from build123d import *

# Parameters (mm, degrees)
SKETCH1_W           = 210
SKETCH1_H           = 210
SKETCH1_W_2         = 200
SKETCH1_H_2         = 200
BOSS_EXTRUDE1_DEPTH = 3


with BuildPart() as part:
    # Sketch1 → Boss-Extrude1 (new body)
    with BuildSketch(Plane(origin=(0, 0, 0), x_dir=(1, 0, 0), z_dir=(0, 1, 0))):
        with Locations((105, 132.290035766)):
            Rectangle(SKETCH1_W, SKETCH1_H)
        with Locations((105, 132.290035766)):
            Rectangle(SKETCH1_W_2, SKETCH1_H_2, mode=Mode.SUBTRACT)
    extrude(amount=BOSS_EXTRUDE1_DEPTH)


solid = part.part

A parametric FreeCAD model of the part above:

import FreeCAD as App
import Part
import Sketcher
from FreeCAD import Vector

doc = App.newDocument("Part")
body = doc.addObject("PartDesign::Body", "Body")

# Sketch on XZ plane
sketch1 = body.newObject("Sketcher::SketchObject", "Sketch")
sketch1.AttachmentSupport = (doc.getObject("XZ_Plane"), [""])
sketch1.MapMode = "FlatFace"
sketch1.addGeometry([
    Part.LineSegment(Vector(0, -237, 0), Vector(0, -27, 0)),  # 0
    Part.LineSegment(Vector(0, -27, 0), Vector(210, -27, 0)),  # 1
    Part.LineSegment(Vector(210, -27, 0), Vector(210, -237, 0)),  # 2
    Part.LineSegment(Vector(210, -237, 0), Vector(0, -237, 0)),  # 3
    Part.LineSegment(Vector(205, -32, 0), Vector(5, -32, 0)),  # 4
    Part.LineSegment(Vector(5, -32, 0), Vector(5, -232, 0)),  # 5
    Part.LineSegment(Vector(5, -232, 0), Vector(205, -232, 0)),  # 6
    Part.LineSegment(Vector(205, -232, 0), Vector(205, -32, 0)),  # 7
], False)
sketch1.addConstraint([
    Sketcher.Constraint("Coincident", 0, 2, 1, 1),
    Sketcher.Constraint("Coincident", 1, 2, 2, 1),
    Sketcher.Constraint("Coincident", 2, 2, 3, 1),
    Sketcher.Constraint("Coincident", 3, 2, 0, 1),
    Sketcher.Constraint("Coincident", 4, 2, 5, 1),
    Sketcher.Constraint("Coincident", 5, 2, 6, 1),
    Sketcher.Constraint("Coincident", 6, 2, 7, 1),
    Sketcher.Constraint("Coincident", 7, 2, 4, 1),
    Sketcher.Constraint("Vertical", 0),
    Sketcher.Constraint("Horizontal", 1),
    Sketcher.Constraint("Vertical", 2),
    Sketcher.Constraint("Horizontal", 3),
    Sketcher.Constraint("Horizontal", 4),
    Sketcher.Constraint("Vertical", 5),
    Sketcher.Constraint("Horizontal", 6),
    Sketcher.Constraint("Vertical", 7),
    Sketcher.Constraint("PointOnObject", 0, 2, -2),
    Sketcher.Constraint("Equal", 3, 0),
    Sketcher.Constraint("Equal", 6, 5),
    Sketcher.Constraint("DistanceX", 1, 1, 1, 2, 210.0),
    Sketcher.Constraint("DistanceX", 4, 2, 4, 1, 200.0),
    Sketcher.Constraint("DistanceX", -1, 1, 4, 2, 5.0),
    Sketcher.Constraint("DistanceY", 4, 2, 0, 2, 5.0),
    Sketcher.Constraint("DistanceY", 0, 2, -1, 1, 27.290036),
])
pad1 = body.newObject("PartDesign::Pad", "Pad")
pad1.Profile = sketch1
pad1.Length = 3
pad1.Reversed = True

doc.recompute()
